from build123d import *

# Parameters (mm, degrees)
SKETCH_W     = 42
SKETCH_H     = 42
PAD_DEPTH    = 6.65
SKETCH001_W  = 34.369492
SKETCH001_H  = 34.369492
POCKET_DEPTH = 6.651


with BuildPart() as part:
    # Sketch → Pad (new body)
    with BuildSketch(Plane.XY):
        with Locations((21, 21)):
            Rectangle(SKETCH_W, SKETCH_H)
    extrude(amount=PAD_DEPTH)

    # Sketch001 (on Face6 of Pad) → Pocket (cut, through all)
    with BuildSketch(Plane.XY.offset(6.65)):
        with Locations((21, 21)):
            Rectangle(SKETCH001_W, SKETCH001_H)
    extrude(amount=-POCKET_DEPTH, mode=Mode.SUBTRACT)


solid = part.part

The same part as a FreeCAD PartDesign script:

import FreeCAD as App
import Part
import Sketcher
from FreeCAD import Vector
Q = App.Units.Quantity


def add_polygon(sketch, points):
    """Adds a closed chain of lines whose ends are joined by coincident constraints."""
    first, n = sketch.GeometryCount, len(points)
    for a, b in zip(points, points[1:] + points[:1]):
        sketch.addGeometry(Part.LineSegment(App.Vector(*a, 0), App.Vector(*b, 0)), False)
    for i in range(n):
        sketch.addConstraint(Sketcher.Constraint("Coincident", first + i, 2, first + (i + 1) % n, 1))

doc = App.newDocument("Part")
body = doc.addObject("PartDesign::Body", "Body")

sketch1 = body.newObject("Sketcher::SketchObject", "Sketch")
sketch1.AttachmentSupport = (doc.getObject("XY_Plane"), [""])
sketch1.MapMode = "FlatFace"
add_polygon(sketch1, [(0, 42), (0, 0), (42, 0), (42, 42)])
sketch1.addConstraint(Sketcher.Constraint("Vertical", 0))
sketch1.addConstraint(Sketcher.Constraint("Horizontal", 1))
sketch1.addConstraint(Sketcher.Constraint("Vertical", 2))
sketch1.addConstraint(Sketcher.Constraint("Horizontal", 3))
sketch1.addConstraint(Sketcher.Constraint("Coincident", 0, 2, -1, 1))
sketch1.addConstraint(Sketcher.Constraint("Equal", 3, 0))
sketch1.addConstraint(Sketcher.Constraint("DistanceX", 1, 1, 1, 2, Q("42 mm")))
pad1 = body.newObject("PartDesign::Pad", "Pad")
pad1.Profile = sketch1
pad1.Length = 6.65

sketch2 = body.newObject("Sketcher::SketchObject", "Sketch001")
sketch2.AttachmentSupport = (doc.getObject("XY_Plane"), [""])
sketch2.MapMode = "FlatFace"
sketch2.AttachmentOffset = App.Placement(Vector(0, 0, 6.65), App.Rotation())
add_polygon(sketch2, [(4, 38), (4, 4), (38, 4), (38, 38)])
sketch2.addConstraint(Sketcher.Constraint("Vertical", 0))
sketch2.addConstraint(Sketcher.Constraint("Horizontal", 1))
sketch2.addConstraint(Sketcher.Constraint("Vertical", 2))
sketch2.addConstraint(Sketcher.Constraint("Horizontal", 3))
sketch2.addConstraint(Sketcher.Constraint("Equal", 3, 0))
sketch2.addConstraint(Sketcher.Constraint("DistanceX", 1, 1, 1, 2, Q("34.369492 mm")))
sketch2.addConstraint(Sketcher.Constraint("DistanceX", -1, 1, 0, 2, Q("3.815254 mm")))
sketch2.addConstraint(Sketcher.Constraint("DistanceY", -1, 1, 0, 2, Q("3.815254 mm")))
pocket1 = body.newObject("PartDesign::Pocket", "Pocket")
pocket1.Profile = sketch2
pocket1.Type = "ThroughAll"

doc.recompute()
